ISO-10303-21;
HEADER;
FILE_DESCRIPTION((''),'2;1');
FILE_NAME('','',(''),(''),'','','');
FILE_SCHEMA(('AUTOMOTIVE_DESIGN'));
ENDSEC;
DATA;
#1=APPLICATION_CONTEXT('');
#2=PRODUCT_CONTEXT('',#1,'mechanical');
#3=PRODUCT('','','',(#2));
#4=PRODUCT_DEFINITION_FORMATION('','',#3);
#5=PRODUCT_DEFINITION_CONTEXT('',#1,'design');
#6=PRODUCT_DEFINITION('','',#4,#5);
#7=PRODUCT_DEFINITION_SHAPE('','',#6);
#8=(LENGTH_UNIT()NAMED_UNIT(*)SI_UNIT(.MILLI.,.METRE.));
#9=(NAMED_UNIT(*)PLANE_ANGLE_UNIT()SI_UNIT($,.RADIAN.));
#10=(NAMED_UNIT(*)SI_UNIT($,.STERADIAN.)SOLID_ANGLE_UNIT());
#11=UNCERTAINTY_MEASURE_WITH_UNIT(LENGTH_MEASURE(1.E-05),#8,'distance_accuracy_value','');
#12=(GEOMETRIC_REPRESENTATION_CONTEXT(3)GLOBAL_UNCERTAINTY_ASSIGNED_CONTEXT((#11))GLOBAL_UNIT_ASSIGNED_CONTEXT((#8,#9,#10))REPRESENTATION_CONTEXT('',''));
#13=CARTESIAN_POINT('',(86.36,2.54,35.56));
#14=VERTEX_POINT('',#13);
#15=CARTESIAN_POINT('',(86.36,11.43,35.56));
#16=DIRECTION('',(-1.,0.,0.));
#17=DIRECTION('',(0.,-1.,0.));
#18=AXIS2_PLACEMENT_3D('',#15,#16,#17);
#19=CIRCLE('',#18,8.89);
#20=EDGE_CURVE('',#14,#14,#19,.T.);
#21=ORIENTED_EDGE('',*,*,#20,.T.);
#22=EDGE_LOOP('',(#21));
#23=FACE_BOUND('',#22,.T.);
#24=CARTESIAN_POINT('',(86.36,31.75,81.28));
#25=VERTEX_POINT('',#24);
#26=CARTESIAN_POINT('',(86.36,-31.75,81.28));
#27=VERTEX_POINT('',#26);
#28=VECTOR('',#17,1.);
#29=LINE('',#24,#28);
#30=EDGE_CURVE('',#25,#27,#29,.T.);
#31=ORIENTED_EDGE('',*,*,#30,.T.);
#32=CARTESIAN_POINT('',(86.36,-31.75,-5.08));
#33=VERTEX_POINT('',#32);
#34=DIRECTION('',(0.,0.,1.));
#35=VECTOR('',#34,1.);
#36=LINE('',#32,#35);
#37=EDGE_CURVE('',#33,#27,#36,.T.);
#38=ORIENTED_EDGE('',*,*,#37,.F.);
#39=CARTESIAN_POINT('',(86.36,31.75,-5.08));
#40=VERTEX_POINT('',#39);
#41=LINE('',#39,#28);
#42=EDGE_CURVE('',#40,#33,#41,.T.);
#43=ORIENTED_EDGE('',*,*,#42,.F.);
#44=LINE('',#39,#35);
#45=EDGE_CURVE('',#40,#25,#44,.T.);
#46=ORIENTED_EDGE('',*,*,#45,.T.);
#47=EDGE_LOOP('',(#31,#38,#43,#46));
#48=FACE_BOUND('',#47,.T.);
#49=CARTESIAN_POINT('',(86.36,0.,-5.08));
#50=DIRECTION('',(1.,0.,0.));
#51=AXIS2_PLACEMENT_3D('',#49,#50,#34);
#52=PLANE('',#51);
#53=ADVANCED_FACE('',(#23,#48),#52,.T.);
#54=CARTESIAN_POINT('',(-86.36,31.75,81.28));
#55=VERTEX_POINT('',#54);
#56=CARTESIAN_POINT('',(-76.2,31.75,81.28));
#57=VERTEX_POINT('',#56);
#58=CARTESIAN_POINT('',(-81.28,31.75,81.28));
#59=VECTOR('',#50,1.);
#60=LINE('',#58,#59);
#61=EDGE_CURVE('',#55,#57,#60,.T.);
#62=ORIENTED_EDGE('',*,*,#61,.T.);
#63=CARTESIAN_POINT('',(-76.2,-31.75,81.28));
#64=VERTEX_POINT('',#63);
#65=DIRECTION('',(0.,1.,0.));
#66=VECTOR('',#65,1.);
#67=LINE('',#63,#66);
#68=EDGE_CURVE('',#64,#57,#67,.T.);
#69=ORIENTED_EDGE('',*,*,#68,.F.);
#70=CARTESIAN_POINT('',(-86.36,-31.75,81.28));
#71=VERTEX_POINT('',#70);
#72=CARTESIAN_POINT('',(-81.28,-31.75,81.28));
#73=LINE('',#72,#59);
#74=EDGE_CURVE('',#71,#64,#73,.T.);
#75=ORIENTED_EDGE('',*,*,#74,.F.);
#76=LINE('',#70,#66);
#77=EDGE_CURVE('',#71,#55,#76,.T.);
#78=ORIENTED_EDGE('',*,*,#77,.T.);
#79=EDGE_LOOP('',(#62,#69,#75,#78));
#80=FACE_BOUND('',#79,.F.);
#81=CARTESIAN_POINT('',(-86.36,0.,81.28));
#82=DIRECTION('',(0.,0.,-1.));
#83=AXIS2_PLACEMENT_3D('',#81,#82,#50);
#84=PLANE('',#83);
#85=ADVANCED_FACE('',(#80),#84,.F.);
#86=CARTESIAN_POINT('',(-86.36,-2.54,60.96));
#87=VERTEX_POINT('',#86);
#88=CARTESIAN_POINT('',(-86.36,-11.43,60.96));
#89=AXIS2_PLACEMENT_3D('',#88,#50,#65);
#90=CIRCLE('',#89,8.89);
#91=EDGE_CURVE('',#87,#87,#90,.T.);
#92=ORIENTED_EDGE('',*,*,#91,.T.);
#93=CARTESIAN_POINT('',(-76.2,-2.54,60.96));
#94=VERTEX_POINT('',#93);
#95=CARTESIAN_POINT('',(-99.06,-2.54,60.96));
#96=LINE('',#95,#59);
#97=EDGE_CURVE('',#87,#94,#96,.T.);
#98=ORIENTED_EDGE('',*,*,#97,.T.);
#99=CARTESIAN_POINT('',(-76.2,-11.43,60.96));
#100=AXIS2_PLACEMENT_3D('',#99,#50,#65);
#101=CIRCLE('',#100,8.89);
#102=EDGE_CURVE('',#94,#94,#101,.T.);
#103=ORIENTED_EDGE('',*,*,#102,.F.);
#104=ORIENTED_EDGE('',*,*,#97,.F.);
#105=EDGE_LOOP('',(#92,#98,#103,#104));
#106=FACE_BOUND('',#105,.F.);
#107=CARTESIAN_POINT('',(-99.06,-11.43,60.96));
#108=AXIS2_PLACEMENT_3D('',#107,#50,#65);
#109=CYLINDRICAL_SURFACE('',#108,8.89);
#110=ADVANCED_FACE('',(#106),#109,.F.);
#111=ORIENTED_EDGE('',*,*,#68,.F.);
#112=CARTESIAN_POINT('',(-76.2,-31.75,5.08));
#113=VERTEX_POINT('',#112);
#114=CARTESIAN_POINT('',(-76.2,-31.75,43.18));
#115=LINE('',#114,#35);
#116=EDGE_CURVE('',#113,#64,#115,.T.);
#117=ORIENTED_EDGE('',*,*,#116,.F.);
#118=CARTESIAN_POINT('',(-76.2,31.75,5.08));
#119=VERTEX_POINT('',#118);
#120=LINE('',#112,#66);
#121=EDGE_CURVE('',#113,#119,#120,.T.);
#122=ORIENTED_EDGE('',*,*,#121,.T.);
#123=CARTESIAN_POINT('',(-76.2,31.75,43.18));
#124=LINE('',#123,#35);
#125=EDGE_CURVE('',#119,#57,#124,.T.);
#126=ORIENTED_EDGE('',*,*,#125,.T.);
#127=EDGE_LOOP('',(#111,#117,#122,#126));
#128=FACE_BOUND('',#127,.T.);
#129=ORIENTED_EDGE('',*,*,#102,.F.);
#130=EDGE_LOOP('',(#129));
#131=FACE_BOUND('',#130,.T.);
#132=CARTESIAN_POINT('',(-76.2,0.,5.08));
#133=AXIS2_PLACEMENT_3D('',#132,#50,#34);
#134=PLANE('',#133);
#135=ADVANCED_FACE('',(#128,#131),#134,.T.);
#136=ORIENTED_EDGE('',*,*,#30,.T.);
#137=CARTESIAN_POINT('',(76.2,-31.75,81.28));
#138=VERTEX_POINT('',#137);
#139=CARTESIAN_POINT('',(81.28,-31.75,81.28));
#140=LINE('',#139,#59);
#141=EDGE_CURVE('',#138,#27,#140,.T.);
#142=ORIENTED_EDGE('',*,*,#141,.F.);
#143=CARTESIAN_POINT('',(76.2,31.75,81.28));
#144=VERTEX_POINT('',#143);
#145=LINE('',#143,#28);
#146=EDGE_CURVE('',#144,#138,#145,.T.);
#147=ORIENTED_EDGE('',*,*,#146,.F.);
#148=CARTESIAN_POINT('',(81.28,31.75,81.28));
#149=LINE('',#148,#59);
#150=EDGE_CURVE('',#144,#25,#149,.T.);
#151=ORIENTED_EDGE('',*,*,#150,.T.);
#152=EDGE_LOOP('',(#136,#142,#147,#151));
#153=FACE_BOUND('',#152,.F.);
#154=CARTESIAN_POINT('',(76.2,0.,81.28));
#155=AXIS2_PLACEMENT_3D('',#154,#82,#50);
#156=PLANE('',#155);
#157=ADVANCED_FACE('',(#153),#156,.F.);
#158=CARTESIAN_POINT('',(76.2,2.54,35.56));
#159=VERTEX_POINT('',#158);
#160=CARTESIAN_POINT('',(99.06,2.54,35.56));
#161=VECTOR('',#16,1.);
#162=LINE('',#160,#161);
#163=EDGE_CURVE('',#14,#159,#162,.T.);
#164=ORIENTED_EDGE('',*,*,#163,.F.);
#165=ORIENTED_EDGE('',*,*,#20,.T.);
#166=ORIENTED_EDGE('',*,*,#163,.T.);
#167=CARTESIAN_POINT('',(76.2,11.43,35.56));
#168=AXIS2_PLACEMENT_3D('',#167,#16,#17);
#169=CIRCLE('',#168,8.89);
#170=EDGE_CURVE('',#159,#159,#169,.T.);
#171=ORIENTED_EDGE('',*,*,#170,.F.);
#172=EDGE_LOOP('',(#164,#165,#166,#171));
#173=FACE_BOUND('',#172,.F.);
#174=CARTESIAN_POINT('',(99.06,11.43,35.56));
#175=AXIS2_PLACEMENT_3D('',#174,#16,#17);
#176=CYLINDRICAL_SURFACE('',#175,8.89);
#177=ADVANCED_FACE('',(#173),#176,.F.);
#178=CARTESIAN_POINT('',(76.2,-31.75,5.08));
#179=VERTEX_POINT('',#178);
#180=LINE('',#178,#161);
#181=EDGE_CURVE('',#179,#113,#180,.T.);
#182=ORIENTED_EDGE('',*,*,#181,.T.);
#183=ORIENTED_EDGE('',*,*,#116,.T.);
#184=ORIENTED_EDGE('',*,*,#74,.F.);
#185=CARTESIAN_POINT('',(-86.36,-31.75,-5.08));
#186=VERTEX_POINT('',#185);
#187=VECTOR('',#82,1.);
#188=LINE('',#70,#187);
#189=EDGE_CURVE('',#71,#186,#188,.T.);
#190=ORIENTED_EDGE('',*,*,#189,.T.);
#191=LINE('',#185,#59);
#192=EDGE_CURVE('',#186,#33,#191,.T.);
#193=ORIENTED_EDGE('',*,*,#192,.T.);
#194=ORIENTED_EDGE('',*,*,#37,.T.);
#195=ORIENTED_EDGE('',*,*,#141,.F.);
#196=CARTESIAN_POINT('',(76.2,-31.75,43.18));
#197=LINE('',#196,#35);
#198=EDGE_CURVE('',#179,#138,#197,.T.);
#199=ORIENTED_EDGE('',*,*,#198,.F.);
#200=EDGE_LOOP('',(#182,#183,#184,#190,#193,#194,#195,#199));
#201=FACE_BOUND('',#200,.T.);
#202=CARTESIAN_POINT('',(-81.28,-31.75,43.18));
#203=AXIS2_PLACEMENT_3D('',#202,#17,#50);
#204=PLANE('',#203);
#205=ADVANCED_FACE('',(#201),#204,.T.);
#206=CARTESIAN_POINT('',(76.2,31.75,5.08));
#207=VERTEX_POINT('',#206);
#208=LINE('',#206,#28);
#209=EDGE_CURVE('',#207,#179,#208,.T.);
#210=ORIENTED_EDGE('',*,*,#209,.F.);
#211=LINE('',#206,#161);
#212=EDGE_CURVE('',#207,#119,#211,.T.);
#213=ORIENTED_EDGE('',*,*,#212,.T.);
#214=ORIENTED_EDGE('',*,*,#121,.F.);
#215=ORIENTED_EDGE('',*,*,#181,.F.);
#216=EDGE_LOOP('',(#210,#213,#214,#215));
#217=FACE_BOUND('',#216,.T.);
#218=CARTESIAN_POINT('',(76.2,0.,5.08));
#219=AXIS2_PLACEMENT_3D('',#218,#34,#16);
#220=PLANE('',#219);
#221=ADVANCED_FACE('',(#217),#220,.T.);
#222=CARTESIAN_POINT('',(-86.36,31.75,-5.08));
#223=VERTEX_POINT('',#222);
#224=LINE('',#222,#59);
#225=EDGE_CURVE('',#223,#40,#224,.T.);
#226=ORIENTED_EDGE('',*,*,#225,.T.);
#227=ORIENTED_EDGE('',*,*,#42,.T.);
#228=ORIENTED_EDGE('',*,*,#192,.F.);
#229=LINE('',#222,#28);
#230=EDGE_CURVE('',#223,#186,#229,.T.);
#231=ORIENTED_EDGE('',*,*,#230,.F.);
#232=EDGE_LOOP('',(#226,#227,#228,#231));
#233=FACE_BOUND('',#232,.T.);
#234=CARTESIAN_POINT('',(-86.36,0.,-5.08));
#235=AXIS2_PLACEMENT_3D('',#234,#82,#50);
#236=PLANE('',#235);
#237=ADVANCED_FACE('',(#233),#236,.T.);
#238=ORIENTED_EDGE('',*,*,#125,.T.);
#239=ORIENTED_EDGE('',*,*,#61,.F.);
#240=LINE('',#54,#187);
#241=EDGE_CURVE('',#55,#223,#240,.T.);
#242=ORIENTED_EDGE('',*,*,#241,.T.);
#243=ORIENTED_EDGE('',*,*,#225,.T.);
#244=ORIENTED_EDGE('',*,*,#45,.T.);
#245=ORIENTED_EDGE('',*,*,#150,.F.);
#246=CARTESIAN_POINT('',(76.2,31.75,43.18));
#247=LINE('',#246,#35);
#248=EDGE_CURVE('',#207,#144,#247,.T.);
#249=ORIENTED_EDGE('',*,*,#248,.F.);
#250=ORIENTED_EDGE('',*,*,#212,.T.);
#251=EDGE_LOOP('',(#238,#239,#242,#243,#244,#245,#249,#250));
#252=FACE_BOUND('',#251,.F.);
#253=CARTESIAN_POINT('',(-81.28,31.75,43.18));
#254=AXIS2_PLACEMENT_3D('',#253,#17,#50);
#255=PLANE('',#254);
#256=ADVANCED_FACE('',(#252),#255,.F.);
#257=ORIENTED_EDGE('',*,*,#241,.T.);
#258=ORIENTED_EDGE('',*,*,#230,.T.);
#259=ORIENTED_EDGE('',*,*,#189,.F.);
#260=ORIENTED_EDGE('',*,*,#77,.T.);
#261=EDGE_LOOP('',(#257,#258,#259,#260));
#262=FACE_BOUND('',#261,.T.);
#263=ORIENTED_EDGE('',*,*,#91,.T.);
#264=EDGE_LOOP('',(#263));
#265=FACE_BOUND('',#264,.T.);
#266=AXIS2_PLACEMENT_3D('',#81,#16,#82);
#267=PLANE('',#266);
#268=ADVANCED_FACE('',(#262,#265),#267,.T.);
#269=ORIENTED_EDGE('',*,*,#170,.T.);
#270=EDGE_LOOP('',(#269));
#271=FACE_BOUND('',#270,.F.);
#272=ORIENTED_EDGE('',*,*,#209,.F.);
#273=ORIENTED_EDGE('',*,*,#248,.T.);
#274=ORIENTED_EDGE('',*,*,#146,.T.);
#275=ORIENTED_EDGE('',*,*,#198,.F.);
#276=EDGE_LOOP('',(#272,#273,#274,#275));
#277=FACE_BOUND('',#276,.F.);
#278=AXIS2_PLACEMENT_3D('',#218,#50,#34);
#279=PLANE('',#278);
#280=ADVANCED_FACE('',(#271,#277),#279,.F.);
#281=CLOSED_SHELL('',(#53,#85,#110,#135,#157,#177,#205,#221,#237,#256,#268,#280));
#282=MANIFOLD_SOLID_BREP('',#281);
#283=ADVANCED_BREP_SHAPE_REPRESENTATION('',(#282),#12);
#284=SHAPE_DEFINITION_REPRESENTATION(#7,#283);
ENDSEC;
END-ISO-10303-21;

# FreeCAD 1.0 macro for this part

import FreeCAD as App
import Part
import Sketcher

V = App.Vector
Q = App.Units.Quantity

doc = App.newDocument("Part")
body = doc.addObject("PartDesign::Body", "Body")

# Sketch on XZ plane
sketch1 = body.newObject("Sketcher::SketchObject", "Sketch")
sketch1.AttachmentSupport = (doc.getObject("XZ_Plane"), [""])
sketch1.MapMode = "FlatFace"
sketch1.addGeometry([
    Part.LineSegment(V(-86, 81, 0), V(-86, -5, 0)),  # 0
    Part.LineSegment(V(-86, -5, 0), V(86, -5, 0)),  # 1
    Part.LineSegment(V(86, -5, 0), V(86, 81, 0)),  # 2
    Part.LineSegment(V(86, 81, 0), V(76, 81, 0)),  # 3
    Part.LineSegment(V(76, 81, 0), V(76, 5, 0)),  # 4
    Part.LineSegment(V(76, 5, 0), V(-76, 5, 0)),  # 5
    Part.LineSegment(V(-76, 5, 0), V(-76, 81, 0)),  # 6
    Part.LineSegment(V(-76, 81, 0), V(-86, 81, 0)),  # 7
], False)
sketch1.addConstraint([
    Sketcher.Constraint("Coincident", 0, 2, 1, 1),
    Sketcher.Constraint("Coincident", 1, 2, 2, 1),
    Sketcher.Constraint("Coincident", 2, 2, 3, 1),
    Sketcher.Constraint("Coincident", 3, 2, 4, 1),
    Sketcher.Constraint("Coincident", 4, 2, 5, 1),
    Sketcher.Constraint("Coincident", 5, 2, 6, 1),
    Sketcher.Constraint("Coincident", 6, 2, 7, 1),
    Sketcher.Constraint("Coincident", 7, 2, 0, 1),
    Sketcher.Constraint("Vertical", 0),
    Sketcher.Constraint("Horizontal", 1),
    Sketcher.Constraint("Vertical", 2),
    Sketcher.Constraint("Horizontal", 3),
    Sketcher.Constraint("Vertical", 4),
    Sketcher.Constraint("Horizontal", 5),
    Sketcher.Constraint("Vertical", 6),
    Sketcher.Constraint("Horizontal", 7),
    Sketcher.Constraint("Symmetric", 3, 2, 6, 2, -2),
    Sketcher.Constraint("Equal", 3, 7),
    Sketcher.Constraint("DistanceX", 5, 2, 5, 1, Q("6 in")),
    Sketcher.Constraint("DistanceY", 4, 2, 4, 1, Q("3 in")),
    Sketcher.Constraint("DistanceX", 1, 1, 1, 2, Q("6.8 in")),
    Sketcher.Constraint("DistanceY", 0, 2, 0, 1, Q("3.4 in")),
    Sketcher.Constraint("DistanceY", 0, 2, -1, 1, Q("0.2 in")),
])
pad1 = body.newObject("PartDesign::Pad", "Pad")
pad1.Profile = sketch1
pad1.Length = Q("2.5 in")
pad1.Midplane = True

# Sketch on YZ plane
sketch2 = body.newObject("Sketcher::SketchObject", "Sketch001")
sketch2.AttachmentSupport = (doc.getObject("YZ_Plane"), [""])
sketch2.MapMode = "FlatFace"
sketch2.AttachmentOffset = App.Placement(V(0, 0, 3.4 * 25.4), App.Rotation())
sketch2.addGeometry(Part.Circle(V(11, 36, 0), V(0, 0, 1), 9), False)
sketch2.addConstraint([
    Sketcher.Constraint("Diameter", 0, Q("0.7 in")),
    Sketcher.Constraint("DistanceY", -1, 1, 0, 3, Q("1.4 in")),
    Sketcher.Constraint("DistanceX", -1, 1, 0, 3, Q("0.45 in")),
])
doc.recompute()
hole = body.newObject("PartDesign::Hole", "Hole")
hole.Profile = sketch2
hole.ThreadType = "None"
hole.Diameter = Q("0.7 in")
hole.DepthType = "Dimension"
hole.Depth = Q("0.5 in")
hole.DrillPoint = "Flat"

# Sketch on YZ plane
sketch3 = body.newObject("Sketcher::SketchObject", "Sketch002")
sketch3.AttachmentSupport = (doc.getObject("YZ_Plane"), [""])
sketch3.MapMode = "FlatFace"
sketch3.AttachmentOffset = App.Placement(V(0, 0, -3.4 * 25.4), App.Rotation())
sketch3.addGeometry(Part.Circle(V(-11, 61, 0), V(0, 0, 1), 9), False)
sketch3.addConstraint([
    Sketcher.Constraint("Diameter", 0, Q("0.7 in")),
    Sketcher.Constraint("DistanceY", -1, 1, 0, 3, Q("2.4 in")),
    Sketcher.Constraint("DistanceX", 0, 3, -1, 1, Q("0.45 in")),
])
doc.recompute()
hole2 = body.newObject("PartDesign::Hole", "Hole001")
hole2.Profile = sketch3
hole2.ThreadType = "None"
hole2.Diameter = Q("0.7 in")
hole2.DepthType = "Dimension"
hole2.Depth = Q("0.5 in")
hole2.DrillPoint = "Flat"
hole2.Reversed = True

doc.recompute()
